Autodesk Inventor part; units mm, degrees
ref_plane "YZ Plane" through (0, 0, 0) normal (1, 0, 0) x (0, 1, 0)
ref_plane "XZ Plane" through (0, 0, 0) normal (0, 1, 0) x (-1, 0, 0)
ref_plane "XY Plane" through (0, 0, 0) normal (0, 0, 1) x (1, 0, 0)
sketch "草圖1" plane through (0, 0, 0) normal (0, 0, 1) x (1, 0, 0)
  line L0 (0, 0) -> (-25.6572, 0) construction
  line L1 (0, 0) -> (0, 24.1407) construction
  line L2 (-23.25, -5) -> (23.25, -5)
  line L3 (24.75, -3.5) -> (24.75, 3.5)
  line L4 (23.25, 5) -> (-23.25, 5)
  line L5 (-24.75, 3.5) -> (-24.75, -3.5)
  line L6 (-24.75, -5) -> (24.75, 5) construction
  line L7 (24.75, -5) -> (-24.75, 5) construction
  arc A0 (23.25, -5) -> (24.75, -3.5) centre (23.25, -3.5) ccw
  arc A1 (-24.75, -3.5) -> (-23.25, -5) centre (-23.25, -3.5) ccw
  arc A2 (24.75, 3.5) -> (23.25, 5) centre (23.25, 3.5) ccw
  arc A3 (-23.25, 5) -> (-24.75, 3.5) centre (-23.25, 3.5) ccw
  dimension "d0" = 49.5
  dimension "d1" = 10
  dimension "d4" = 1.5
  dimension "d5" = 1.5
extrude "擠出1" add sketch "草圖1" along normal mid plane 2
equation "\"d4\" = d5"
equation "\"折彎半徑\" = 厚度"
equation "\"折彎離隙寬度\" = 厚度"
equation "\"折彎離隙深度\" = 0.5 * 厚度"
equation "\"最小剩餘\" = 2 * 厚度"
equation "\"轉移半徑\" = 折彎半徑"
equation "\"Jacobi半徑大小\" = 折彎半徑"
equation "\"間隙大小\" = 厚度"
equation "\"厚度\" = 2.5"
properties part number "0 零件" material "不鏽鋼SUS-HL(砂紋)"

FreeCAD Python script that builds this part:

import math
import FreeCAD as App
import Part
import Sketcher

V = App.Vector
Q = App.Units.Quantity

doc = App.newDocument("Part")
params = doc.addObject("Spreadsheet::Sheet", "Params")
for row, (alias, value) in enumerate([
    ("sketch1_radius", "1.5 mm"),
    ("sketch1_width", "46.5 mm"),
    ("pad1_length", "2 mm"),
], start=1):
    params.set(f"A{row}", alias)
    params.set(f"B{row}", "=" + value)
    params.setAlias(f"B{row}", alias)

body = doc.addObject("PartDesign::Body", "Body")

sketch1 = body.newObject("Sketcher::SketchObject", "Sketch")
sketch1.AttachmentSupport = (doc.getObject("XY_Plane"), [""])
sketch1.MapMode = "FlatFace"
sketch1.addGeometry(Part.ArcOfCircle(Part.Circle(V(-23.25, -3.5, 0), V(0, 0, 1), 1.5), math.radians(180), math.radians(270)), False)
sketch1.addGeometry(Part.LineSegment(V(-23.25, -5, 0), V(23.25, -5, 0)), False)
sketch1.addGeometry(Part.ArcOfCircle(Part.Circle(V(23.25, -3.5, 0), V(0, 0, 1), 1.5), math.radians(-90), math.radians(0)), False)
sketch1.addGeometry(Part.LineSegment(V(24.75, -3.5, 0), V(24.75, 3.5, 0)), False)
sketch1.addGeometry(Part.ArcOfCircle(Part.Circle(V(23.25, 3.5, 0), V(0, 0, 1), 1.5), math.radians(0), math.radians(90)), False)
sketch1.addGeometry(Part.LineSegment(V(23.25, 5, 0), V(-23.25, 5, 0)), False)
sketch1.addGeometry(Part.ArcOfCircle(Part.Circle(V(-23.25, 3.5, 0), V(0, 0, 1), 1.5), math.radians(90), math.radians(180)), False)
sketch1.addGeometry(Part.LineSegment(V(-24.75, 3.5, 0), V(-24.75, -3.5, 0)), False)
sketch1.addConstraint(Sketcher.Constraint("Tangent", 0, 2, 1, 1))
sketch1.addConstraint(Sketcher.Constraint("Tangent", 1, 2, 2, 1))
sketch1.addConstraint(Sketcher.Constraint("Tangent", 2, 2, 3, 1))
sketch1.addConstraint(Sketcher.Constraint("Tangent", 3, 2, 4, 1))
sketch1.addConstraint(Sketcher.Constraint("Tangent", 4, 2, 5, 1))
sketch1.addConstraint(Sketcher.Constraint("Tangent", 5, 2, 6, 1))
sketch1.addConstraint(Sketcher.Constraint("Tangent", 6, 2, 7, 1))
sketch1.addConstraint(Sketcher.Constraint("Tangent", 7, 2, 0, 1))
sketch1.addConstraint(Sketcher.Constraint("Horizontal", 1))
sketch1.addConstraint(Sketcher.Constraint("Vertical", 3))
sketch1.addConstraint(Sketcher.Constraint("Horizontal", 5))
sketch1.addConstraint(Sketcher.Constraint("Vertical", 7))
sketch1.addConstraint(Sketcher.Constraint("Equal", 0, 2))
sketch1.addConstraint(Sketcher.Constraint("Equal", 2, 4))
sketch1.addConstraint(Sketcher.Constraint("Equal", 4, 6))
sketch1.addConstraint(Sketcher.Constraint("Symmetric", 0, 3, 4, 3, -1, 1))
sketch1.addConstraint(Sketcher.Constraint("Radius", 0, Q("1.5 mm")))
sketch1.addConstraint(Sketcher.Constraint("DistanceY", 1, 2, 4, 2, Q("10 mm")))
sketch1.addConstraint(Sketcher.Constraint("DistanceX", 1, 1, 1, 2, Q("46.5 mm")))
sketch1.setExpression("Constraints[16]", "Params.sketch1_radius")
sketch1.setExpression("Constraints[18]", "Params.sketch1_width")
pad1 = body.newObject("PartDesign::Pad", "Pad")
pad1.Profile = sketch1
pad1.setExpression("Length", "Params.pad1_length")
pad1.Midplane = True

doc.recompute()
